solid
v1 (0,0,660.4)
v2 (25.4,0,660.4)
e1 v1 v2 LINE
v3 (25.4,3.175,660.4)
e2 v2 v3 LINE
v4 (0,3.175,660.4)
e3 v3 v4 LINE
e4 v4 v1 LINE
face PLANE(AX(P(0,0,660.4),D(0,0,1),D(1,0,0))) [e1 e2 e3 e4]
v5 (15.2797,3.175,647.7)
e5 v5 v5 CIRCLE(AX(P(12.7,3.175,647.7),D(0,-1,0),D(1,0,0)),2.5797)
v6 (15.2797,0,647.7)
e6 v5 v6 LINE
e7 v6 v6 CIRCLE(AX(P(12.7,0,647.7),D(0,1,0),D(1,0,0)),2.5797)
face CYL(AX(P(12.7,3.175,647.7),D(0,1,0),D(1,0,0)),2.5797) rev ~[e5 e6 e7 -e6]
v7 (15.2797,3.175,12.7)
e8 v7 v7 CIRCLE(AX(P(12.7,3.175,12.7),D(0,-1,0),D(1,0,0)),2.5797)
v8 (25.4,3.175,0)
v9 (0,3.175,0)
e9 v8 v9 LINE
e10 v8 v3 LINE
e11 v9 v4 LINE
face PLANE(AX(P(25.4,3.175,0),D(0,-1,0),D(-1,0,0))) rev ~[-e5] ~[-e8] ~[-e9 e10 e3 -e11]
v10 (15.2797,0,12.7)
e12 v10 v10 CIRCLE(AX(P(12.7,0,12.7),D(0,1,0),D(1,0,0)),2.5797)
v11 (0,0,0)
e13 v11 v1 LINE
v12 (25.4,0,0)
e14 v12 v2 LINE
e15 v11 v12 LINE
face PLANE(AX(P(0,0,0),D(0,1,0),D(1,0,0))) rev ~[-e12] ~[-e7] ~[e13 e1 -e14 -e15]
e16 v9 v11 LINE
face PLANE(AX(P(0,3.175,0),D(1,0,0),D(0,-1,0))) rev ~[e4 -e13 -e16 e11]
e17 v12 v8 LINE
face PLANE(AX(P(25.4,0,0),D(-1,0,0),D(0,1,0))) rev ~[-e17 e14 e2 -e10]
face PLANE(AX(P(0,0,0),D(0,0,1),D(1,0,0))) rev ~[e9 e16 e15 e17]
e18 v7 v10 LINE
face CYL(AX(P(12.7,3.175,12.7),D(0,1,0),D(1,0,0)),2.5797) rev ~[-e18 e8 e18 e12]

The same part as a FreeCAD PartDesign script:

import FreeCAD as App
import Part
import Sketcher
from FreeCAD import Vector
Q = App.Units.Quantity


def add_polygon(sketch, points):
    """Adds a closed chain of lines whose ends are joined by coincident constraints."""
    first, n = sketch.GeometryCount, len(points)
    for a, b in zip(points, points[1:] + points[:1]):
        sketch.addGeometry(Part.LineSegment(App.Vector(*a, 0), App.Vector(*b, 0)), False)
    for i in range(n):
        sketch.addConstraint(Sketcher.Constraint("Coincident", first + i, 2, first + (i + 1) % n, 1))

doc = App.newDocument("Part")
body = doc.addObject("PartDesign::Body", "Body")

sketch1 = body.newObject("Sketcher::SketchObject", "Sketch")
sketch1.AttachmentSupport = (doc.getObject("XY_Plane"), [""])
sketch1.MapMode = "FlatFace"
add_polygon(sketch1, [(0, 3.2), (0, 0), (25.4, 0), (25.4, 3.2)])
sketch1.addConstraint([
    Sketcher.Constraint("Vertical", 0),
    Sketcher.Constraint("Horizontal", 1),
    Sketcher.Constraint("Vertical", 2),
    Sketcher.Constraint("Horizontal", 3),
    Sketcher.Constraint("Coincident", 0, 2, -1, 1),
    Sketcher.Constraint("DistanceX", 1, 1, 1, 2, Q("1 in")),
    Sketcher.Constraint("DistanceY", 0, 2, 0, 1, Q("0.125 in")),
])
pad1 = body.newObject("PartDesign::Pad", "Pad")
pad1.Profile = sketch1
pad1.Length = Q("26 in")

sketch2 = body.newObject("Sketcher::SketchObject", "Sketch001")
sketch2.AttachmentSupport = (doc.getObject("XZ_Plane"), [""])
sketch2.MapMode = "FlatFace"
sketch2.AttachmentOffset = App.Placement(Vector(0, 0, -0.125 * 25.4), App.Rotation())
sketch2.addGeometry([
    Part.Circle(Vector(12.7, 647.7, 0), Vector(0, 0, 1), 2.6),
    Part.Circle(Vector(12.7, 12.7, 0), Vector(0, 0, 1), 2.6),
], False)
sketch2.addConstraint([
    Sketcher.Constraint("Equal", 0, 1),
    Sketcher.Constraint("Vertical", 0, 3, 1, 3),
    Sketcher.Constraint("Diameter", 0, Q("0.203126 in")),
    Sketcher.Constraint("DistanceX", -1, 1, 0, 3, Q("0.5 in")),
    Sketcher.Constraint("DistanceY", -1, 1, 1, 3, Q("0.5 in")),
    Sketcher.Constraint("DistanceY", 1, 3, 0, 3, Q("25 in")),
])
pocket1 = body.newObject("PartDesign::Pocket", "Pocket")
pocket1.Profile = sketch2
pocket1.Length = Q("24 in")
pocket1.Reversed = True

doc.recompute()
